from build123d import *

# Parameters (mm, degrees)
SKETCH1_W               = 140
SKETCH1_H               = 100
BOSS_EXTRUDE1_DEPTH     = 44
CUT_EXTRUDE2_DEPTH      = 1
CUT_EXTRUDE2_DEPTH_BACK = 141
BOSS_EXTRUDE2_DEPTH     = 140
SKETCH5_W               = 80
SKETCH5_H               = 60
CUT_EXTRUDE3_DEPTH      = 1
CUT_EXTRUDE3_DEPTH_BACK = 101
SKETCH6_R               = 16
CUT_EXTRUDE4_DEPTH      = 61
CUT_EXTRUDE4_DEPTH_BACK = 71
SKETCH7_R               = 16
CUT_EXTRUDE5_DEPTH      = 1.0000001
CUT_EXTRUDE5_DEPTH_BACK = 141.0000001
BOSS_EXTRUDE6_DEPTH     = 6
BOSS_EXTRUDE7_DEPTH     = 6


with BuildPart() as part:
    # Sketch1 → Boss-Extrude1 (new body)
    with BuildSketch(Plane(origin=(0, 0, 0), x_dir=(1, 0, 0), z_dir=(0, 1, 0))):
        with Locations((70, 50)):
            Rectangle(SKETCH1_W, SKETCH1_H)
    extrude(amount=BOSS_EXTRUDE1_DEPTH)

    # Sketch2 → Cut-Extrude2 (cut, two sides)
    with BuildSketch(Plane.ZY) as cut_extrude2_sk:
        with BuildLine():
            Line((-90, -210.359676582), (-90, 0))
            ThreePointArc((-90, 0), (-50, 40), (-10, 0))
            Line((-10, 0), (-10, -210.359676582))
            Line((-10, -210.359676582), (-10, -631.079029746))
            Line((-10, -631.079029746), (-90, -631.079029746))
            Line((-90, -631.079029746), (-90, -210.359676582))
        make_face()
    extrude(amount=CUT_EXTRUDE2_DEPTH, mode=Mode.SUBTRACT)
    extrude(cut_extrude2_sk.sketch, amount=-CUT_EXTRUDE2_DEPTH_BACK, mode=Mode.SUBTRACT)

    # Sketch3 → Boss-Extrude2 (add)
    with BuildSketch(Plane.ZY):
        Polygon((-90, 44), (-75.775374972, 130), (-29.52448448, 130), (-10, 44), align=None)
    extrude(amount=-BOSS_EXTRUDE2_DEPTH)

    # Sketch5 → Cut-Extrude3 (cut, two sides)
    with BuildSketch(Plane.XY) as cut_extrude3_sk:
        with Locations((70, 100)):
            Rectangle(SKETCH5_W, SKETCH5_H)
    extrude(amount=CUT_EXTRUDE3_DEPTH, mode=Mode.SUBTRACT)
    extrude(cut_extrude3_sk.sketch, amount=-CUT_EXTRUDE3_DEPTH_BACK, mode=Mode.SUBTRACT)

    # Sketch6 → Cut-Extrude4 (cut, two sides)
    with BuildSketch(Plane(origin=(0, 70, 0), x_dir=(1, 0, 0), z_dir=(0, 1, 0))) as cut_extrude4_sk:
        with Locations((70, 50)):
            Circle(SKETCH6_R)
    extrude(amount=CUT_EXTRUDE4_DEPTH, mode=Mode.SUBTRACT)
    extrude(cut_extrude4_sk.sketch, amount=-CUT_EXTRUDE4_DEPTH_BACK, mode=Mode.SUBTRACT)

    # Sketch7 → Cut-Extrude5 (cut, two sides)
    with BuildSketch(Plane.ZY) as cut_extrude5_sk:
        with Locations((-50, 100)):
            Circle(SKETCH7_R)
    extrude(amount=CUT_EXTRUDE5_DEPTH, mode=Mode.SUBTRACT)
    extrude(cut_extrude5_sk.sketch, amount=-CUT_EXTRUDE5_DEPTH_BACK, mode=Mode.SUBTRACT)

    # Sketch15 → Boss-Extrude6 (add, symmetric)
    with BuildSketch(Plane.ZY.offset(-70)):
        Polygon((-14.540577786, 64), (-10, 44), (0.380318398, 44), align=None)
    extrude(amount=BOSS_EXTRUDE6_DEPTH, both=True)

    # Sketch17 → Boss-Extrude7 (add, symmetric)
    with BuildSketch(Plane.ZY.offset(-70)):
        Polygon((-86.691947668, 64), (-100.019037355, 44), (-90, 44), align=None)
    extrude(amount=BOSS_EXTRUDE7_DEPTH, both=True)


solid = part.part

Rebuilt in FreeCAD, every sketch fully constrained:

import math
import FreeCAD as App
import Part
import Sketcher
from FreeCAD import Vector
Q = App.Units.Quantity


def add_polygon(sketch, points):
    """Adds a closed chain of lines whose ends are joined by coincident constraints."""
    first, n = sketch.GeometryCount, len(points)
    for a, b in zip(points, points[1:] + points[:1]):
        sketch.addGeometry(Part.LineSegment(App.Vector(*a, 0), App.Vector(*b, 0)), False)
    for i in range(n):
        sketch.addConstraint(Sketcher.Constraint("Coincident", first + i, 2, first + (i + 1) % n, 1))

doc = App.newDocument("Part")
body = doc.addObject("PartDesign::Body", "Body")

sketch1 = body.newObject("Sketcher::SketchObject", "Sketch")
sketch1.AttachmentSupport = (doc.getObject("XZ_Plane"), [""])
sketch1.MapMode = "FlatFace"
add_polygon(sketch1, [(0, -100), (0, 0), (140, 0), (140, -100)])
sketch1.addConstraint(Sketcher.Constraint("Vertical", 0))
sketch1.addConstraint(Sketcher.Constraint("Horizontal", 1))
sketch1.addConstraint(Sketcher.Constraint("Vertical", 2))
sketch1.addConstraint(Sketcher.Constraint("Horizontal", 3))
sketch1.addConstraint(Sketcher.Constraint("Coincident", 0, 2, -1, 1))
sketch1.addConstraint(Sketcher.Constraint("DistanceX", 1, 1, 1, 2, Q("140 mm")))
sketch1.addConstraint(Sketcher.Constraint("DistanceY", 0, 1, 0, 2, Q("100 mm")))
pad1 = body.newObject("PartDesign::Pad", "Pad")
pad1.Profile = sketch1
pad1.Length = 44
pad1.Reversed = True

sketch2 = body.newObject("Sketcher::SketchObject", "Sketch001")
sketch2.AttachmentSupport = (doc.getObject("YZ_Plane"), [""])
sketch2.MapMode = "FlatFace"
sketch2.addGeometry(Part.ArcOfCircle(Part.Circle(Vector(0, -50, 0), Vector(0, 0, 1), 40), math.radians(-90), math.radians(90)), False)
sketch2.addGeometry(Part.LineSegment(Vector(0, -90, 0), Vector(-631, -90, 0)), False)
sketch2.addGeometry(Part.LineSegment(Vector(-631, -90, 0), Vector(-631, -10, 0)), False)
sketch2.addGeometry(Part.LineSegment(Vector(-631, -10, 0), Vector(0, -10, 0)), False)
sketch2.addConstraint(Sketcher.Constraint("Tangent", 0, 1, 1, 1))
sketch2.addConstraint(Sketcher.Constraint("Coincident", 1, 2, 2, 1))
sketch2.addConstraint(Sketcher.Constraint("Coincident", 2, 2, 3, 1))
sketch2.addConstraint(Sketcher.Constraint("Tangent", 3, 2, 0, 2))
sketch2.addConstraint(Sketcher.Constraint("Horizontal", 1))
sketch2.addConstraint(Sketcher.Constraint("Vertical", 2))
sketch2.addConstraint(Sketcher.Constraint("Horizontal", 3))
sketch2.addConstraint(Sketcher.Constraint("PointOnObject", 0, 3, -2))
sketch2.addConstraint(Sketcher.Constraint("Radius", 0, Q("40 mm")))
sketch2.addConstraint(Sketcher.Constraint("DistanceY", 0, 3, -1, 1, Q("50 mm")))
sketch2.addConstraint(Sketcher.Constraint("DistanceX", 1, 2, 1, 1, Q("631.07903 mm")))
pocket1 = body.newObject("PartDesign::Pocket", "Pocket")
pocket1.Profile = sketch2
pocket1.Type = "ThroughAll"
pocket1.Midplane = True

sketch3 = body.newObject("Sketcher::SketchObject", "Sketch002")
sketch3.AttachmentSupport = (doc.getObject("YZ_Plane"), [""])
sketch3.MapMode = "FlatFace"
add_polygon(sketch3, [(130, -76), (44, -90), (44, -10), (130, -30)])
sketch3.addConstraint(Sketcher.Constraint("Vertical", 1))
sketch3.addConstraint(Sketcher.Constraint("Vertical", 3))
sketch3.addConstraint(Sketcher.Constraint("DistanceY", 1, 1, 1, 2, Q("80 mm")))
sketch3.addConstraint(Sketcher.Constraint("DistanceX", -1, 1, 0, 2, Q("44 mm")))
sketch3.addConstraint(Sketcher.Constraint("DistanceY", 0, 2, -1, 1, Q("90 mm")))
sketch3.addConstraint(Sketcher.Constraint("DistanceX", -1, 1, 2, 2, Q("130 mm")))
sketch3.addConstraint(Sketcher.Constraint("DistanceY", 3, 2, 3, 1, Q("46.25089 mm")))
sketch3.addConstraint(Sketcher.Constraint("Distance", 0, Q("87.168457 mm")))
pad2 = body.newObject("PartDesign::Pad", "Pad001")
pad2.Profile = sketch3
pad2.Length = 140

sketch4 = body.newObject("Sketcher::SketchObject", "Sketch003")
sketch4.AttachmentSupport = (doc.getObject("XY_Plane"), [""])
sketch4.MapMode = "FlatFace"
add_polygon(sketch4, [(30, 130), (30, 70), (110, 70), (110, 130)])
sketch4.addConstraint(Sketcher.Constraint("Vertical", 0))
sketch4.addConstraint(Sketcher.Constraint("Horizontal", 1))
sketch4.addConstraint(Sketcher.Constraint("Vertical", 2))
sketch4.addConstraint(Sketcher.Constraint("Horizontal", 3))
sketch4.addConstraint(Sketcher.Constraint("DistanceX", 1, 1, 1, 2, Q("80 mm")))
sketch4.addConstraint(Sketcher.Constraint("DistanceY", 0, 2, 0, 1, Q("60 mm")))
sketch4.addConstraint(Sketcher.Constraint("DistanceX", -1, 1, 0, 2, Q("30 mm")))
sketch4.addConstraint(Sketcher.Constraint("DistanceY", -1, 1, 0, 2, Q("70 mm")))
pocket2 = body.newObject("PartDesign::Pocket", "Pocket001")
pocket2.Profile = sketch4
pocket2.Type = "ThroughAll"
pocket2.Midplane = True

sketch5 = body.newObject("Sketcher::SketchObject", "Sketch004")
sketch5.AttachmentSupport = (doc.getObject("XZ_Plane"), [""])
sketch5.MapMode = "FlatFace"
sketch5.AttachmentOffset = App.Placement(Vector(0, 0, -70), App.Rotation())
sketch5.addGeometry(Part.Circle(Vector(70, -50, 0), Vector(0, 0, 1), 16), False)
sketch5.addConstraint(Sketcher.Constraint("Diameter", 0, Q("32 mm")))
sketch5.addConstraint(Sketcher.Constraint("DistanceX", -1, 1, 0, 3, Q("70 mm")))
sketch5.addConstraint(Sketcher.Constraint("DistanceY", 0, 3, -1, 1, Q("50 mm")))
pocket3 = body.newObject("PartDesign::Pocket", "Pocket002")
pocket3.Profile = sketch5
pocket3.Type = "ThroughAll"
pocket3.Midplane = True

sketch6 = body.newObject("Sketcher::SketchObject", "Sketch005")
sketch6.AttachmentSupport = (doc.getObject("YZ_Plane"), [""])
sketch6.MapMode = "FlatFace"
sketch6.addGeometry(Part.Circle(Vector(100, -50, 0), Vector(0, 0, 1), 16), False)
sketch6.addConstraint(Sketcher.Constraint("Diameter", 0, Q("32 mm")))
sketch6.addConstraint(Sketcher.Constraint("DistanceX", -1, 1, 0, 3, Q("100 mm")))
sketch6.addConstraint(Sketcher.Constraint("DistanceY", 0, 3, -1, 1, Q("50 mm")))
pocket4 = body.newObject("PartDesign::Pocket", "Pocket003")
pocket4.Profile = sketch6
pocket4.Type = "ThroughAll"
pocket4.Midplane = True

sketch7 = body.newObject("Sketcher::SketchObject", "Sketch006")
sketch7.AttachmentSupport = (doc.getObject("YZ_Plane"), [""])
sketch7.MapMode = "FlatFace"
sketch7.AttachmentOffset = App.Placement(Vector(0, 0, 70), App.Rotation())
add_polygon(sketch7, [(64, -15), (44, -10), (44, 0)])
sketch7.addConstraint(Sketcher.Constraint("Vertical", 1))
sketch7.addConstraint(Sketcher.Constraint("DistanceX", -1, 1, 0, 2, Q("44 mm")))
sketch7.addConstraint(Sketcher.Constraint("DistanceY", 0, 2, -1, 1, Q("10 mm")))
sketch7.addConstraint(Sketcher.Constraint("DistanceX", -1, 1, 2, 2, Q("64 mm")))
sketch7.addConstraint(Sketcher.Constraint("DistanceY", 1, 1, 1, 2, Q("10.380318 mm")))
sketch7.addConstraint(Sketcher.Constraint("Distance", 0, Q("20.508946 mm")))
pad3 = body.newObject("PartDesign::Pad", "Pad002")
pad3.Profile = sketch7
pad3.Length = 12
pad3.Midplane = True

sketch8 = body.newObject("Sketcher::SketchObject", "Sketch007")
sketch8.AttachmentSupport = (doc.getObject("YZ_Plane"), [""])
sketch8.MapMode = "FlatFace"
sketch8.AttachmentOffset = App.Placement(Vector(0, 0, 70), App.Rotation())
add_polygon(sketch8, [(64, -87), (44, -100), (44, -90)])
sketch8.addConstraint(Sketcher.Constraint("Vertical", 1))
sketch8.addConstraint(Sketcher.Constraint("DistanceX", -1, 1, 0, 2, Q("44 mm")))
sketch8.addConstraint(Sketcher.Constraint("DistanceY", 1, 2, -1, 1, Q("90 mm")))
sketch8.addConstraint(Sketcher.Constraint("DistanceX", -1, 1, 2, 2, Q("64 mm")))
sketch8.addConstraint(Sketcher.Constraint("DistanceY", 1, 1, 1, 2, Q("10.019037 mm")))
sketch8.addConstraint(Sketcher.Constraint("DistanceY", 0, 2, 2, 2, Q("13.32709 mm")))
pad4 = body.newObject("PartDesign::Pad", "Pad003")
pad4.Profile = sketch8
pad4.Length = 12
pad4.Midplane = True

doc.recompute()
